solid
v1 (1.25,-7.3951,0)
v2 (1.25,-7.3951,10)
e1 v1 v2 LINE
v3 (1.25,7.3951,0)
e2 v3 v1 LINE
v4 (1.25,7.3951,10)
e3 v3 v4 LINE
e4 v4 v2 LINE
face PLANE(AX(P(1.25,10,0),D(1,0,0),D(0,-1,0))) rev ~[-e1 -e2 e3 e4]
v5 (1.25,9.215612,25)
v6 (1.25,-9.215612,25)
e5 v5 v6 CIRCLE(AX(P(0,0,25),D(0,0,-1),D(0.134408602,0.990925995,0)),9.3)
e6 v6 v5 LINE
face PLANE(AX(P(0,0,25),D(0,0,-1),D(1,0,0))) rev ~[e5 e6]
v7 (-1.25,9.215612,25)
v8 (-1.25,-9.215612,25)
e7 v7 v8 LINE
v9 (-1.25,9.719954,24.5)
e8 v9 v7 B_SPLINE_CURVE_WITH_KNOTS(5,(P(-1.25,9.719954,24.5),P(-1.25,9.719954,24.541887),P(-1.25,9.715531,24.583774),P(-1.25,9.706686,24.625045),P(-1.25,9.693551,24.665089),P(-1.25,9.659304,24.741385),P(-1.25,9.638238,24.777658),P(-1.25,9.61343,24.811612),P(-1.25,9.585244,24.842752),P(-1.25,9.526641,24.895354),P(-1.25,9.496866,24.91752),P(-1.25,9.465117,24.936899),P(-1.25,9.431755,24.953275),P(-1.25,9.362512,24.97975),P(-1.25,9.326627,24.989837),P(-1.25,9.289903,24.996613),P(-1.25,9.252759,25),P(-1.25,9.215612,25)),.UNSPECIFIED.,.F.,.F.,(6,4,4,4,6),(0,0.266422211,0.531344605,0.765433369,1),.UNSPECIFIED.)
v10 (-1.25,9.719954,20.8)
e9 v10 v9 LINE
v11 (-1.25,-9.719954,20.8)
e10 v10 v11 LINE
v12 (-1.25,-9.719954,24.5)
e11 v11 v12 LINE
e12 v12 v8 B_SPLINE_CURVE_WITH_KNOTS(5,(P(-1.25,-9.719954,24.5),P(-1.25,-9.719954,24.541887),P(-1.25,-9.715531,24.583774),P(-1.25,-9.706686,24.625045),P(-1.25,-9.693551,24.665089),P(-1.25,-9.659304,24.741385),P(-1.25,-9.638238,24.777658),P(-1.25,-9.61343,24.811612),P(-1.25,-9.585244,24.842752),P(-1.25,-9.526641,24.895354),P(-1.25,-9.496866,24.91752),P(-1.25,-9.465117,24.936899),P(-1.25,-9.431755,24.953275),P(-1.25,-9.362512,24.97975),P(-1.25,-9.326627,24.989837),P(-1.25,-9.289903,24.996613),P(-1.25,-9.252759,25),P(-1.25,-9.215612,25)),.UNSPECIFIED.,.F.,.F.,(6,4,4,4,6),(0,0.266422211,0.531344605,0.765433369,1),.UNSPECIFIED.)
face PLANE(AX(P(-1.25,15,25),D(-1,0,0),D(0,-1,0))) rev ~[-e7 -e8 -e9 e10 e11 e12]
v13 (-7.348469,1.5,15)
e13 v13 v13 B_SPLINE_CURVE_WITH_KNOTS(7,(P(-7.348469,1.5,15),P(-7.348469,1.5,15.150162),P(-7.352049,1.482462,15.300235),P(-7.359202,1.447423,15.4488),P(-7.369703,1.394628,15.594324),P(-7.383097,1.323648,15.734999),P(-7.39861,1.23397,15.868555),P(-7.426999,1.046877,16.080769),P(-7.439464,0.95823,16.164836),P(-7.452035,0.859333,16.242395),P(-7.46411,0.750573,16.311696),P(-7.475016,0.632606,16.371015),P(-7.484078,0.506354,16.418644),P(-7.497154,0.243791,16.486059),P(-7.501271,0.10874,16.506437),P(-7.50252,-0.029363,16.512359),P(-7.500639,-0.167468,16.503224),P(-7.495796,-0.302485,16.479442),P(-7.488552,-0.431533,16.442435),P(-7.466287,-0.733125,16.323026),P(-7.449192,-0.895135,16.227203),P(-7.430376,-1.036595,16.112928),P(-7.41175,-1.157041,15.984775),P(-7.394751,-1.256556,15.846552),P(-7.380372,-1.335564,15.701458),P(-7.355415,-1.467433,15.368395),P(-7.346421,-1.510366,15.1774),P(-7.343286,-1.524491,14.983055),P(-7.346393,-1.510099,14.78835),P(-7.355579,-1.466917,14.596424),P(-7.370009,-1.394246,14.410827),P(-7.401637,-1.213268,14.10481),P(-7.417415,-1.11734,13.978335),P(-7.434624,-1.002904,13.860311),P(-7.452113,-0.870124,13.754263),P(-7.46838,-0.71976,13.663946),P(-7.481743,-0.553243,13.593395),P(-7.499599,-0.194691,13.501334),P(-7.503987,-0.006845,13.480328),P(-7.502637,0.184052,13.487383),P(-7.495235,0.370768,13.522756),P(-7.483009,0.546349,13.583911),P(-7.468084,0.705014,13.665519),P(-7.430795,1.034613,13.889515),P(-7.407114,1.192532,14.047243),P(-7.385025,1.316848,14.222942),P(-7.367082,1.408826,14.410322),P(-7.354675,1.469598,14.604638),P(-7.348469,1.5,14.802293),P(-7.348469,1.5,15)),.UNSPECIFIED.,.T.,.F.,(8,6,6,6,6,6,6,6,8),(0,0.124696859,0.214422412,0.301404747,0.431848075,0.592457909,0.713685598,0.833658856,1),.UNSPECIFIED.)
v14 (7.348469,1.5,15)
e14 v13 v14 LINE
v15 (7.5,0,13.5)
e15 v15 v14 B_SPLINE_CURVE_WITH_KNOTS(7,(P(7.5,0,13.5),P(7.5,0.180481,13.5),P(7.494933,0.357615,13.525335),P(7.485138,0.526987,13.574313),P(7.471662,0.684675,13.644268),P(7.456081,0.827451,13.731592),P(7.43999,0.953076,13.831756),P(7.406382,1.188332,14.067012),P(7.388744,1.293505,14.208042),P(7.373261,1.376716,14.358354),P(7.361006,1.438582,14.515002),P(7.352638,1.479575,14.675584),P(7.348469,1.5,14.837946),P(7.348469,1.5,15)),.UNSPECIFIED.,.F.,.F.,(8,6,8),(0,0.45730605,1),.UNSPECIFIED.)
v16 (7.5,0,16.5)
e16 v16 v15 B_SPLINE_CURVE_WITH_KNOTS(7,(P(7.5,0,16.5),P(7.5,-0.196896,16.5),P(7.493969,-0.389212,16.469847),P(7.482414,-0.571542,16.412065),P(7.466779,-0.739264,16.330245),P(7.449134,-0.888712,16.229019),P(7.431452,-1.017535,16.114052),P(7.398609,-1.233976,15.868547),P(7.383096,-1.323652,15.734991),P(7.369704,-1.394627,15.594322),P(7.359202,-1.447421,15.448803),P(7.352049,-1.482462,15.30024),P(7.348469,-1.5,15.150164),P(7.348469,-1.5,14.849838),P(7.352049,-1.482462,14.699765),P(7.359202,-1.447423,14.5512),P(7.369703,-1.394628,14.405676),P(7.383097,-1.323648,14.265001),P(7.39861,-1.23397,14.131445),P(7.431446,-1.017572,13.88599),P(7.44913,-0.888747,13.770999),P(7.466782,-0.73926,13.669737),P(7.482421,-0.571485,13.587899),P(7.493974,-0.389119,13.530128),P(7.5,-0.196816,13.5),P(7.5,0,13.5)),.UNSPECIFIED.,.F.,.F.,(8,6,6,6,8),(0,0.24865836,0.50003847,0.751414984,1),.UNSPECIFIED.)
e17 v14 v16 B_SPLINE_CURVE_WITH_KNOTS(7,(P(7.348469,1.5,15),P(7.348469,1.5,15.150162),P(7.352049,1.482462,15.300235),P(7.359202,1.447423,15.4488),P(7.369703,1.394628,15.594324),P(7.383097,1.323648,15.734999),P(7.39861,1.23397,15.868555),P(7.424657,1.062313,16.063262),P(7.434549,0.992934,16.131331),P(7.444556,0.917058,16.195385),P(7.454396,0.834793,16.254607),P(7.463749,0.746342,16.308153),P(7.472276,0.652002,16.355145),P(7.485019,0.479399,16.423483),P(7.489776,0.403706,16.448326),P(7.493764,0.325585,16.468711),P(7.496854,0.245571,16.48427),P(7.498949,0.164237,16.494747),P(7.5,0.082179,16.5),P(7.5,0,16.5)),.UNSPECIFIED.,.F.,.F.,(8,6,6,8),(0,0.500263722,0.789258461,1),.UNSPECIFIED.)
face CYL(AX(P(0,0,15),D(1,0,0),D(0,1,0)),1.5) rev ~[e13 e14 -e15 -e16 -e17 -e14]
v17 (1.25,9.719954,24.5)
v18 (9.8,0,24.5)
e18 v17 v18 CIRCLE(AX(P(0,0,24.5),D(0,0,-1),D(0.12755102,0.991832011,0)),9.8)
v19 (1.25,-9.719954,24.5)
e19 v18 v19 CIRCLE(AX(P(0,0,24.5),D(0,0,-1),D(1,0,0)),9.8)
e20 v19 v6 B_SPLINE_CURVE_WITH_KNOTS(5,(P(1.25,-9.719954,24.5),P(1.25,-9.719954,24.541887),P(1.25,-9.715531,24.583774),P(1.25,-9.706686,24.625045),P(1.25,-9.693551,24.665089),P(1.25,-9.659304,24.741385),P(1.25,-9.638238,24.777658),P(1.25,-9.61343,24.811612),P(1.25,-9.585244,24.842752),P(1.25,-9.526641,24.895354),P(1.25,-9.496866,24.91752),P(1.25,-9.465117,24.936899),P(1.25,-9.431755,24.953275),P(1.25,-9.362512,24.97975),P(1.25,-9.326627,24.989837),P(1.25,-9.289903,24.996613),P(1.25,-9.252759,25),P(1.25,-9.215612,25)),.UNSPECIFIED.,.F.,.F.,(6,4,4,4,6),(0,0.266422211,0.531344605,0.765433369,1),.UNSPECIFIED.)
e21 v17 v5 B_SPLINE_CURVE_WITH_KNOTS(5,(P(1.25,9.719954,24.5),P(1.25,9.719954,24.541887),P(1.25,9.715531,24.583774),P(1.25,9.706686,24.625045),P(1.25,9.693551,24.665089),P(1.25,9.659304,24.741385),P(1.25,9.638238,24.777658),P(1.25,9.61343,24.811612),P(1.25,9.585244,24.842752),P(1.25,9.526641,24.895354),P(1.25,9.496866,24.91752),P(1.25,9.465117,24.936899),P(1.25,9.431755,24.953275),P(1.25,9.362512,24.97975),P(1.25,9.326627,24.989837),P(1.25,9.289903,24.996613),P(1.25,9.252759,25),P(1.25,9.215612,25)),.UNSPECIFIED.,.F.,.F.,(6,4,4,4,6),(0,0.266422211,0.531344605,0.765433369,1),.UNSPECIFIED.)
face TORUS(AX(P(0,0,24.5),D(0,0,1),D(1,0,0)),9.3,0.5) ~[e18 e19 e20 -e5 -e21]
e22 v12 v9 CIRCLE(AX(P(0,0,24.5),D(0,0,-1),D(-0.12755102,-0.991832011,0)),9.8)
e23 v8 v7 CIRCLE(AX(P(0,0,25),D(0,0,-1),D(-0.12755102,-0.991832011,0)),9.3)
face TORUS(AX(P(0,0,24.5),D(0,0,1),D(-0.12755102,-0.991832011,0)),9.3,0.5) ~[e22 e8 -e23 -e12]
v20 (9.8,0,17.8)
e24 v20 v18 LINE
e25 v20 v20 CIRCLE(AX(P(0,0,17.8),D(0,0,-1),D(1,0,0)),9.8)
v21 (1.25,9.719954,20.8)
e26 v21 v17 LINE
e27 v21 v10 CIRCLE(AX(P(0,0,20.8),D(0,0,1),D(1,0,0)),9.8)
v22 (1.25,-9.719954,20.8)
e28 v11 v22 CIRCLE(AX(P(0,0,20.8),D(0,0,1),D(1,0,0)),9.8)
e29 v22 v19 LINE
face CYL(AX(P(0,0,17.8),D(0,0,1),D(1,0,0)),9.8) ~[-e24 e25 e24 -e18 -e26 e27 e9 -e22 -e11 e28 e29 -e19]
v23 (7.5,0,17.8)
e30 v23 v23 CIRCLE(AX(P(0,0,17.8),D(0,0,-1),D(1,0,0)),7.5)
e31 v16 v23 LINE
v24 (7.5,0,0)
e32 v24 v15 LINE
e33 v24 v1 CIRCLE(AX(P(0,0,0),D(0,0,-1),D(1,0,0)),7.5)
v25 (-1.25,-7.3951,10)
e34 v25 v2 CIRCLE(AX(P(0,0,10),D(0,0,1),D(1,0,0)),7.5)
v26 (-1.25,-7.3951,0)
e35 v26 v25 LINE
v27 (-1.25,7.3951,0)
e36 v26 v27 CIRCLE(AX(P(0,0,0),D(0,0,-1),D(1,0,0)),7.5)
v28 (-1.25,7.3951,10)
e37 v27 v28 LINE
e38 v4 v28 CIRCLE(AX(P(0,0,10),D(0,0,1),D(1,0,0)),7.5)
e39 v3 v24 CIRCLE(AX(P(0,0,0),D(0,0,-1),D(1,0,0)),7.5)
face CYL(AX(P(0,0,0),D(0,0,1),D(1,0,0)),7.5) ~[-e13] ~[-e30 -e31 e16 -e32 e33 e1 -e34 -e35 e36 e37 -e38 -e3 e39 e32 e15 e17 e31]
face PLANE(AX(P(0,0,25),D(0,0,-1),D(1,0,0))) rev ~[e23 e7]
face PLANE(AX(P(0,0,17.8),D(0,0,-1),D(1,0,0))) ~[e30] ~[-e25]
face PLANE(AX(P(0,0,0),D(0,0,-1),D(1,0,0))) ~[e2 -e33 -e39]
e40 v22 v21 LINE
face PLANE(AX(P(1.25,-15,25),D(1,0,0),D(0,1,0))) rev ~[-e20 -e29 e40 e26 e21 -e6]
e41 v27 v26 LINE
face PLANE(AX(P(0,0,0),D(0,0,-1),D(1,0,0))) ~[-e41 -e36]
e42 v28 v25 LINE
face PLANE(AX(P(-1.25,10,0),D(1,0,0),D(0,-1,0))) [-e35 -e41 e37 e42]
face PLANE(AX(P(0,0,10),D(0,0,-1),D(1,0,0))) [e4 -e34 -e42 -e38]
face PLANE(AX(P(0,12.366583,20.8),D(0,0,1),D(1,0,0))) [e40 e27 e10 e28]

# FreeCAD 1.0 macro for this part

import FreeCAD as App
import Part
import Sketcher

V = App.Vector


def edges_at(feature, points):
    """Names of the edges that pass closest to the given points."""
    edges = feature.Shape.Edges
    near = lambda p: min(range(len(edges)), key=lambda i: edges[i].distToShape(Part.Vertex(*p))[0])
    return sorted({f"Edge{near(p) + 1}" for p in points})

doc = App.newDocument("Part")
params = doc.addObject("Spreadsheet::Sheet", "Params")
for row, (alias, value) in enumerate([
    ("sketch1_height", "25 mm"),
    ("sketch1_width", "7.5 mm"),
    ("sketch1_width2", "2.3 mm"),
    ("sketch1_height2", "17.8 mm"),
    ("revolution_angle", "360 deg"),
    ("sketch2_height", "30 mm"),
    ("sketch2_width", "2.5 mm"),
    ("pocket1_length", "4.2 mm"),
    ("fillet_radius", "0.5 mm"),
    ("sketch3_height", "20 mm"),
    ("sketch3_width", "2.5 mm"),
    ("pocket2_length", "10 mm"),
    ("sketch4_diameter", "3 mm"),
    ("pocket3_length", "25 mm"),
], start=1):
    params.set(f"A{row}", alias)
    params.set(f"B{row}", "=" + value)
    params.setAlias(f"B{row}", alias)

body = doc.addObject("PartDesign::Body", "Body")

sketch1 = body.newObject("Sketcher::SketchObject", "Sketch")
sketch1.AttachmentSupport = (doc.getObject("XZ_Plane"), [""])
sketch1.MapMode = "FlatFace"
sketch1.addGeometry([
    Part.LineSegment(V(0, 25, 0), V(0, 0, 0)),
    Part.LineSegment(V(0, 0, 0), V(7.5, 0, 0)),
    Part.LineSegment(V(7.5, 0, 0), V(7.5, 17.8, 0)),
    Part.LineSegment(V(7.5, 17.8, 0), V(9.8, 17.8, 0)),
    Part.LineSegment(V(9.8, 17.8, 0), V(9.8, 25, 0)),
    Part.LineSegment(V(9.8, 25, 0), V(0, 25, 0)),
], False)
sketch1.addConstraint([
    Sketcher.Constraint("Coincident", 0, 2, 1, 1),
    Sketcher.Constraint("Coincident", 1, 2, 2, 1),
    Sketcher.Constraint("Coincident", 2, 2, 3, 1),
    Sketcher.Constraint("Coincident", 3, 2, 4, 1),
    Sketcher.Constraint("Coincident", 4, 2, 5, 1),
    Sketcher.Constraint("Coincident", 5, 2, 0, 1),
    Sketcher.Constraint("Vertical", 0),
    Sketcher.Constraint("Horizontal", 1),
    Sketcher.Constraint("Vertical", 2),
    Sketcher.Constraint("Horizontal", 3),
    Sketcher.Constraint("Vertical", 4),
    Sketcher.Constraint("Horizontal", 5),
    Sketcher.Constraint("Coincident", 0, 2, -1, 1),
    Sketcher.Constraint("DistanceY", 0, 2, 0, 1, 25.0),
    Sketcher.Constraint("DistanceX", 1, 1, 1, 2, 7.5),
    Sketcher.Constraint("DistanceX", 3, 1, 3, 2, 2.3),
    Sketcher.Constraint("DistanceY", 2, 1, 2, 2, 17.8),
])
sketch1.setExpression("Constraints[13]", "Params.sketch1_height")
sketch1.setExpression("Constraints[14]", "Params.sketch1_width")
sketch1.setExpression("Constraints[15]", "Params.sketch1_width2")
sketch1.setExpression("Constraints[16]", "Params.sketch1_height2")
revolution = body.newObject("PartDesign::Revolution", "Revolution")
revolution.Profile = sketch1
revolution.ReferenceAxis = (sketch1, ["V_Axis"])
revolution.setExpression("Angle", "Params.revolution_angle")

sketch2 = body.newObject("Sketcher::SketchObject", "Sketch001")
sketch2.AttachmentSupport = (doc.getObject("XY_Plane"), [""])
sketch2.MapMode = "FlatFace"
sketch2.AttachmentOffset = App.Placement(V(0, 0, 25), App.Rotation())
sketch2.addGeometry([
    Part.LineSegment(V(1.25, 15, 0), V(-1.25, 15, 0)),
    Part.LineSegment(V(-1.25, 15, 0), V(-1.25, -15, 0)),
    Part.LineSegment(V(-1.25, -15, 0), V(1.25, -15, 0)),
    Part.LineSegment(V(1.25, -15, 0), V(1.25, 15, 0)),
], False)
sketch2.addConstraint([
    Sketcher.Constraint("Coincident", 0, 2, 1, 1),
    Sketcher.Constraint("Coincident", 1, 2, 2, 1),
    Sketcher.Constraint("Coincident", 2, 2, 3, 1),
    Sketcher.Constraint("Coincident", 3, 2, 0, 1),
    Sketcher.Constraint("Horizontal", 0),
    Sketcher.Constraint("Vertical", 1),
    Sketcher.Constraint("Horizontal", 2),
    Sketcher.Constraint("Vertical", 3),
    Sketcher.Constraint("Symmetric", 0, 2, 2, 2, -1, 1),
    Sketcher.Constraint("DistanceY", 1, 2, 1, 1, 30.0),
    Sketcher.Constraint("DistanceX", 0, 2, 0, 1, 2.5),
])
sketch2.setExpression("Constraints[9]", "Params.sketch2_height")
sketch2.setExpression("Constraints[10]", "Params.sketch2_width")
pocket1 = body.newObject("PartDesign::Pocket", "Pocket")
pocket1.Profile = sketch2
pocket1.setExpression("Length", "Params.pocket1_length")
doc.recompute()

fillet = body.newObject("PartDesign::Fillet", "Fillet")
fillet.Base = (pocket1, edges_at(pocket1, [(-9.8, 0, 25), (7.358, -6.473, 25), (7.358, 6.473, 25)]))
fillet.setExpression("Radius", "Params.fillet_radius")

sketch3 = body.newObject("Sketcher::SketchObject", "Sketch002")
sketch3.AttachmentSupport = (doc.getObject("XY_Plane"), [""])
sketch3.MapMode = "FlatFace"
sketch3.addGeometry([
    Part.LineSegment(V(-1.25, -10, 0), V(-1.25, 10, 0)),
    Part.LineSegment(V(-1.25, 10, 0), V(1.25, 10, 0)),
    Part.LineSegment(V(1.25, 10, 0), V(1.25, -10, 0)),
    Part.LineSegment(V(1.25, -10, 0), V(-1.25, -10, 0)),
], False)
sketch3.addConstraint([
    Sketcher.Constraint("Coincident", 0, 2, 1, 1),
    Sketcher.Constraint("Coincident", 1, 2, 2, 1),
    Sketcher.Constraint("Coincident", 2, 2, 3, 1),
    Sketcher.Constraint("Coincident", 3, 2, 0, 1),
    Sketcher.Constraint("Vertical", 0),
    Sketcher.Constraint("Horizontal", 1),
    Sketcher.Constraint("Vertical", 2),
    Sketcher.Constraint("Horizontal", 3),
    Sketcher.Constraint("Symmetric", 0, 2, 2, 2, -1, 1),
    Sketcher.Constraint("DistanceY", 0, 1, 0, 2, 20.0),
    Sketcher.Constraint("DistanceX", 1, 1, 1, 2, 2.5),
])
sketch3.setExpression("Constraints[9]", "Params.sketch3_height")
sketch3.setExpression("Constraints[10]", "Params.sketch3_width")
pocket2 = body.newObject("PartDesign::Pocket", "Pocket001")
pocket2.Profile = sketch3
pocket2.setExpression("Length", "Params.pocket2_length")
pocket2.Reversed = True

sketch4 = body.newObject("Sketcher::SketchObject", "Sketch003")
sketch4.AttachmentSupport = (doc.getObject("YZ_Plane"), [""])
sketch4.MapMode = "FlatFace"
sketch4.addGeometry(Part.Circle(V(0, 15, 0), V(0, 0, 1), 1.5), False)
sketch4.addConstraint([
    Sketcher.Constraint("PointOnObject", 0, 3, -2),
    Sketcher.Constraint("Diameter", 0, 3.0),
    Sketcher.Constraint("DistanceY", -1, 1, 0, 3, 15.0),
])
sketch4.setExpression("Constraints[1]", "Params.sketch4_diameter")
pocket3 = body.newObject("PartDesign::Pocket", "Pocket002")
pocket3.Profile = sketch4
pocket3.setExpression("Length", "Params.pocket3_length")
pocket3.Midplane = True

doc.recompute()
